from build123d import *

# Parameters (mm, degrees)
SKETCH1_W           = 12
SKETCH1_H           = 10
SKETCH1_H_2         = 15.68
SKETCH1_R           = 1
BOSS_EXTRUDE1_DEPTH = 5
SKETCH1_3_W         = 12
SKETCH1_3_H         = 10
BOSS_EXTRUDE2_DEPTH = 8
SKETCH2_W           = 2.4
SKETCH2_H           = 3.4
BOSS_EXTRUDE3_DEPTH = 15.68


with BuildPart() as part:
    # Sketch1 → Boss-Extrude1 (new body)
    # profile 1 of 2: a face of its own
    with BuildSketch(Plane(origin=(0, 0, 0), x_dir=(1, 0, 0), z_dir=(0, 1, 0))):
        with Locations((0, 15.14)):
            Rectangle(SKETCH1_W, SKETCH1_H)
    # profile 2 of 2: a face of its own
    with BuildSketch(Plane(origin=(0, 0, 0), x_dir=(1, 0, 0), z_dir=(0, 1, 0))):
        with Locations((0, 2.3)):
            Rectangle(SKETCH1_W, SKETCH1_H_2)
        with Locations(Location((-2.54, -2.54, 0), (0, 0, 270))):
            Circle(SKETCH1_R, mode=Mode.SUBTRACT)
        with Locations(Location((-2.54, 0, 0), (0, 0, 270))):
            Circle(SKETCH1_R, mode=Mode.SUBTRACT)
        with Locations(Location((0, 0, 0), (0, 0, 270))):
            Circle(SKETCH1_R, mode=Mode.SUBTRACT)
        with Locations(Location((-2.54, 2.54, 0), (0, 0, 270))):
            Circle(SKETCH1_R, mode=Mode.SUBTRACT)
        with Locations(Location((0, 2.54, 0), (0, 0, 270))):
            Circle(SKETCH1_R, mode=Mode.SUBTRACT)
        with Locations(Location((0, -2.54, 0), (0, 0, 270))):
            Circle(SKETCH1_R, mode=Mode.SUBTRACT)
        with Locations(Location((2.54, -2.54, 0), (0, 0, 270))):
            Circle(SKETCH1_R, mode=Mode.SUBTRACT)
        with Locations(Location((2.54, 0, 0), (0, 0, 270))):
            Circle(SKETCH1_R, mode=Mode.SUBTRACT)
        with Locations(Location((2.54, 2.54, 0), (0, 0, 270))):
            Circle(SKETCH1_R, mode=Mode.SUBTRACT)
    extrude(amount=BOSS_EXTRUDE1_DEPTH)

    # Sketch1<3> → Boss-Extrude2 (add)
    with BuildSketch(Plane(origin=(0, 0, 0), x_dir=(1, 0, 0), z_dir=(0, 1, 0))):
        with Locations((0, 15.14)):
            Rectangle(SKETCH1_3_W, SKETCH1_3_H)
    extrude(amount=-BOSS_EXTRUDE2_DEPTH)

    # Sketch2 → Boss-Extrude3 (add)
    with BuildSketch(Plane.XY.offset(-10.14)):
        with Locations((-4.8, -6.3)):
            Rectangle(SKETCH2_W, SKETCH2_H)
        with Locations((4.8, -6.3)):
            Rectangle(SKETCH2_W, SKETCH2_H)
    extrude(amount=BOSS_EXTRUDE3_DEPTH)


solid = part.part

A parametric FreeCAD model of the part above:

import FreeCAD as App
import Part
import Sketcher

V = App.Vector
Q = App.Units.Quantity


def add_polygon(sketch, points):
    """Adds a closed chain of lines whose ends are joined by coincident constraints."""
    first, n = sketch.GeometryCount, len(points)
    for a, b in zip(points, points[1:] + points[:1]):
        sketch.addGeometry(Part.LineSegment(App.Vector(*a, 0), App.Vector(*b, 0)), False)
    for i in range(n):
        sketch.addConstraint(Sketcher.Constraint("Coincident", first + i, 2, first + (i + 1) % n, 1))

doc = App.newDocument("Part")
body = doc.addObject("PartDesign::Body", "Body")

# Sketch on XZ plane
sketch1 = doc.addObject("Sketcher::SketchObject", "Sketch")
body.addObject(sketch1)
sketch1.AttachmentSupport = (doc.XZ_Plane, [""])
sketch1.MapMode = "FlatFace"
add_polygon(sketch1, [(-6, -20.14), (-6, 5.54), (6, 5.54), (6, -20.14)])  # lines 0-3
sketch1.addGeometry(Part.Circle(V(2.54, -2.54, 0), V(0, 0, 1), 1), False)  # 4
sketch1.addGeometry(Part.Circle(V(-2.54, 2.54, 0), V(0, 0, 1), 1), False)  # 5
sketch1.addGeometry(Part.Circle(V(0, 2.54, 0), V(0, 0, 1), 1), False)  # 6
sketch1.addGeometry(Part.Circle(V(2.54, 2.54, 0), V(0, 0, 1), 1), False)  # 7
sketch1.addGeometry(Part.Circle(V(-2.54, 0, 0), V(0, 0, 1), 1), False)  # 8
sketch1.addGeometry(Part.Circle(V(-2.54, -2.54, 0), V(0, 0, 1), 1), False)  # 9
sketch1.addGeometry(Part.Circle(V(0, 0, 0), V(0, 0, 1), 1), False)  # 10
sketch1.addGeometry(Part.Circle(V(2.54, 0, 0), V(0, 0, 1), 1), False)  # 11
sketch1.addGeometry(Part.Circle(V(0, -2.54, 0), V(0, 0, 1), 1), False)  # 12
sketch1.addConstraint([
    Sketcher.Constraint("Vertical", 0),
    Sketcher.Constraint("Horizontal", 1),
    Sketcher.Constraint("Vertical", 2),
    Sketcher.Constraint("Horizontal", 3),
    Sketcher.Constraint("Coincident", 10, 3, -1, 1),
    Sketcher.Constraint("Equal", 4, 5),
    Sketcher.Constraint("Equal", 5, 6),
    Sketcher.Constraint("Equal", 6, 7),
    Sketcher.Constraint("Equal", 7, 8),
    Sketcher.Constraint("Equal", 8, 9),
    Sketcher.Constraint("Equal", 9, 10),
    Sketcher.Constraint("Equal", 10, 11),
    Sketcher.Constraint("Equal", 11, 12),
    Sketcher.Constraint("Symmetric", 4, 3, 5, 3, -1, 1),
    Sketcher.Constraint("Symmetric", 7, 3, 9, 3, -1, 1),
    Sketcher.Constraint("Symmetric", 8, 3, 11, 3, -1, 1),
    Sketcher.Constraint("Symmetric", 6, 3, 12, 3, -1, 1),
    Sketcher.Constraint("Symmetric", 5, 3, 7, 3, -2),
    Sketcher.Constraint("PointOnObject", 6, 3, -2),
    Sketcher.Constraint("PointOnObject", 8, 3, -1),
    Sketcher.Constraint("Horizontal", 5, 3, 6, 3),
    Sketcher.Constraint("Vertical", 5, 3, 8, 3),
    Sketcher.Constraint("Diameter", 4, Q("2 mm")),
    Sketcher.Constraint("DistanceX", 1, 1, 1, 2, Q("12 mm")),
    Sketcher.Constraint("DistanceX", 0, 2, -1, 1, Q("6 mm")),
    Sketcher.Constraint("DistanceY", 5, 3, 0, 2, Q("3 mm")),
    Sketcher.Constraint("DistanceY", 0, 1, 0, 2, Q("25.68 mm")),
    Sketcher.Constraint("DistanceY", 2, 2, 4, 3, Q("17.6 mm")),
    Sketcher.Constraint("DistanceX", -1, 1, 4, 3, Q("2.54 mm")),
])
pad1 = doc.addObject("PartDesign::Pad", "Pad")
body.addObject(pad1)
pad1.Profile = sketch1
pad1.Length = 5
pad1.Reversed = True

# Sketch on XZ plane
sketch2 = doc.addObject("Sketcher::SketchObject", "Sketch001")
body.addObject(sketch2)
sketch2.AttachmentSupport = (doc.XZ_Plane, [""])
sketch2.MapMode = "FlatFace"
add_polygon(sketch2, [(-6, -20.14), (-6, -10.14), (6, -10.14), (6, -20.14)])  # lines 0-3
sketch2.addConstraint([
    Sketcher.Constraint("Vertical", 0),
    Sketcher.Constraint("Horizontal", 1),
    Sketcher.Constraint("Vertical", 2),
    Sketcher.Constraint("Horizontal", 3),
    Sketcher.Constraint("DistanceX", 1, 1, 1, 2, Q("12 mm")),
    Sketcher.Constraint("DistanceY", 0, 1, 0, 2, Q("10 mm")),
    Sketcher.Constraint("DistanceX", 0, 2, -1, 1, Q("6 mm")),
    Sketcher.Constraint("DistanceY", 0, 2, -1, 1, Q("10.14 mm")),
])
pad2 = doc.addObject("PartDesign::Pad", "Pad001")
body.addObject(pad2)
pad2.Profile = sketch2
pad2.Length = 8

# Sketch on XY plane
sketch3 = doc.addObject("Sketcher::SketchObject", "Sketch002")
body.addObject(sketch3)
sketch3.AttachmentSupport = (doc.XY_Plane, [""])
sketch3.MapMode = "FlatFace"
sketch3.AttachmentOffset = App.Placement(V(0, 0, -10.14), App.Rotation())
add_polygon(sketch3, [(-6, -4.6), (-6, -8), (-3.6, -8), (-3.6, -4.6)])  # lines 0-3
add_polygon(sketch3, [(3.6, -4.6), (3.6, -8), (6, -8), (6, -4.6)])  # lines 4-7
sketch3.addConstraint([
    Sketcher.Constraint("Vertical", 0),
    Sketcher.Constraint("Horizontal", 1),
    Sketcher.Constraint("Vertical", 2),
    Sketcher.Constraint("Horizontal", 3),
    Sketcher.Constraint("Vertical", 4),
    Sketcher.Constraint("Horizontal", 5),
    Sketcher.Constraint("Vertical", 6),
    Sketcher.Constraint("Horizontal", 7),
    Sketcher.Constraint("Symmetric", 1, 2, 4, 2, -2),
    Sketcher.Constraint("Symmetric", 3, 2, 6, 2, -2),
    Sketcher.Constraint("DistanceX", 1, 1, 1, 2, Q("2.4 mm")),
    Sketcher.Constraint("DistanceY", 0, 2, 0, 1, Q("3.4 mm")),
    Sketcher.Constraint("DistanceX", 0, 2, -1, 1, Q("6 mm")),
    Sketcher.Constraint("DistanceY", 0, 2, -1, 1, Q("8 mm")),
])
pad3 = doc.addObject("PartDesign::Pad", "Pad002")
body.addObject(pad3)
pad3.Profile = sketch3
pad3.Length = 15.68

doc.recompute()
